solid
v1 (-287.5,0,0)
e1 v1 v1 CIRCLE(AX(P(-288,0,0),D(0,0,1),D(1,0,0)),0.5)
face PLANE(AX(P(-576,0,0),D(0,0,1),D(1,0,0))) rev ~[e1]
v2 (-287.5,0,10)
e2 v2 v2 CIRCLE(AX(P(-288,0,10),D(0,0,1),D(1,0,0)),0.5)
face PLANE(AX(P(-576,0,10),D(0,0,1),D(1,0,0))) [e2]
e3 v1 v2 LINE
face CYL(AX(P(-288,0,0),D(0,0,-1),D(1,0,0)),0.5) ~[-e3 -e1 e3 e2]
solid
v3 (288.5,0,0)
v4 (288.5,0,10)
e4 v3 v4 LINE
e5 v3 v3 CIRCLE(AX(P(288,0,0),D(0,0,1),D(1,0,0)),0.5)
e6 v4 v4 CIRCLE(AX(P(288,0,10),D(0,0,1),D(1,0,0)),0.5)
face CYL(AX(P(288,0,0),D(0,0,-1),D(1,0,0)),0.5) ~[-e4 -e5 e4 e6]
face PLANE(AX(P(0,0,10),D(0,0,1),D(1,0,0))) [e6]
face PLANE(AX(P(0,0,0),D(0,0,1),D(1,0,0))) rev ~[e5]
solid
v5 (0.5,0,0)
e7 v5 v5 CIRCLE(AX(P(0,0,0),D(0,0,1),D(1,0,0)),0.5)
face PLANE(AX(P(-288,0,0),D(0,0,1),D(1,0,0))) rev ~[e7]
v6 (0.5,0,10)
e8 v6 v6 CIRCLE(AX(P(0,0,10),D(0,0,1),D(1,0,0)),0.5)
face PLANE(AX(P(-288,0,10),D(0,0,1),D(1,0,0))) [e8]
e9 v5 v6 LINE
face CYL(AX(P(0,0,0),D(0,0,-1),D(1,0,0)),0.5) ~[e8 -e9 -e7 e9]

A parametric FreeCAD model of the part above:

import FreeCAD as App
import Part
import Sketcher
from FreeCAD import Vector
Q = App.Units.Quantity

doc = App.newDocument("Part")
body = doc.addObject("PartDesign::Body", "Body")
body.AllowCompound = True

# Sketch on XY plane
sketch1 = body.newObject("Sketcher::SketchObject", "Sketch")
sketch1.AttachmentSupport = (doc.getObject("XY_Plane"), [""])
sketch1.MapMode = "FlatFace"
sketch1.addGeometry(Part.Circle(Vector(288, 0, 0), Vector(0, 0, 1), 0.5), False)
sketch1.addConstraint(Sketcher.Constraint("PointOnObject", 0, 3, -1))
sketch1.addConstraint(Sketcher.Constraint("Diameter", 0, Q("1 mm")))
sketch1.addConstraint(Sketcher.Constraint("DistanceX", -1, 1, 0, 3, Q("288 mm")))
pad1 = body.newObject("PartDesign::Pad", "Pad")
pad1.Profile = sketch1
pad1.Length = 10
doc.recompute()

linearpattern = body.newObject("PartDesign::LinearPattern", "LinearPattern")
linearpattern.Originals = [pad1]
linearpattern.Direction = (doc.getObject("X_Axis"), [""])
linearpattern.Mode = "offset"
linearpattern.Offset = 288
linearpattern.Occurrences = 3
linearpattern.Reversed = True
body.Tip = linearpattern

doc.recompute()
